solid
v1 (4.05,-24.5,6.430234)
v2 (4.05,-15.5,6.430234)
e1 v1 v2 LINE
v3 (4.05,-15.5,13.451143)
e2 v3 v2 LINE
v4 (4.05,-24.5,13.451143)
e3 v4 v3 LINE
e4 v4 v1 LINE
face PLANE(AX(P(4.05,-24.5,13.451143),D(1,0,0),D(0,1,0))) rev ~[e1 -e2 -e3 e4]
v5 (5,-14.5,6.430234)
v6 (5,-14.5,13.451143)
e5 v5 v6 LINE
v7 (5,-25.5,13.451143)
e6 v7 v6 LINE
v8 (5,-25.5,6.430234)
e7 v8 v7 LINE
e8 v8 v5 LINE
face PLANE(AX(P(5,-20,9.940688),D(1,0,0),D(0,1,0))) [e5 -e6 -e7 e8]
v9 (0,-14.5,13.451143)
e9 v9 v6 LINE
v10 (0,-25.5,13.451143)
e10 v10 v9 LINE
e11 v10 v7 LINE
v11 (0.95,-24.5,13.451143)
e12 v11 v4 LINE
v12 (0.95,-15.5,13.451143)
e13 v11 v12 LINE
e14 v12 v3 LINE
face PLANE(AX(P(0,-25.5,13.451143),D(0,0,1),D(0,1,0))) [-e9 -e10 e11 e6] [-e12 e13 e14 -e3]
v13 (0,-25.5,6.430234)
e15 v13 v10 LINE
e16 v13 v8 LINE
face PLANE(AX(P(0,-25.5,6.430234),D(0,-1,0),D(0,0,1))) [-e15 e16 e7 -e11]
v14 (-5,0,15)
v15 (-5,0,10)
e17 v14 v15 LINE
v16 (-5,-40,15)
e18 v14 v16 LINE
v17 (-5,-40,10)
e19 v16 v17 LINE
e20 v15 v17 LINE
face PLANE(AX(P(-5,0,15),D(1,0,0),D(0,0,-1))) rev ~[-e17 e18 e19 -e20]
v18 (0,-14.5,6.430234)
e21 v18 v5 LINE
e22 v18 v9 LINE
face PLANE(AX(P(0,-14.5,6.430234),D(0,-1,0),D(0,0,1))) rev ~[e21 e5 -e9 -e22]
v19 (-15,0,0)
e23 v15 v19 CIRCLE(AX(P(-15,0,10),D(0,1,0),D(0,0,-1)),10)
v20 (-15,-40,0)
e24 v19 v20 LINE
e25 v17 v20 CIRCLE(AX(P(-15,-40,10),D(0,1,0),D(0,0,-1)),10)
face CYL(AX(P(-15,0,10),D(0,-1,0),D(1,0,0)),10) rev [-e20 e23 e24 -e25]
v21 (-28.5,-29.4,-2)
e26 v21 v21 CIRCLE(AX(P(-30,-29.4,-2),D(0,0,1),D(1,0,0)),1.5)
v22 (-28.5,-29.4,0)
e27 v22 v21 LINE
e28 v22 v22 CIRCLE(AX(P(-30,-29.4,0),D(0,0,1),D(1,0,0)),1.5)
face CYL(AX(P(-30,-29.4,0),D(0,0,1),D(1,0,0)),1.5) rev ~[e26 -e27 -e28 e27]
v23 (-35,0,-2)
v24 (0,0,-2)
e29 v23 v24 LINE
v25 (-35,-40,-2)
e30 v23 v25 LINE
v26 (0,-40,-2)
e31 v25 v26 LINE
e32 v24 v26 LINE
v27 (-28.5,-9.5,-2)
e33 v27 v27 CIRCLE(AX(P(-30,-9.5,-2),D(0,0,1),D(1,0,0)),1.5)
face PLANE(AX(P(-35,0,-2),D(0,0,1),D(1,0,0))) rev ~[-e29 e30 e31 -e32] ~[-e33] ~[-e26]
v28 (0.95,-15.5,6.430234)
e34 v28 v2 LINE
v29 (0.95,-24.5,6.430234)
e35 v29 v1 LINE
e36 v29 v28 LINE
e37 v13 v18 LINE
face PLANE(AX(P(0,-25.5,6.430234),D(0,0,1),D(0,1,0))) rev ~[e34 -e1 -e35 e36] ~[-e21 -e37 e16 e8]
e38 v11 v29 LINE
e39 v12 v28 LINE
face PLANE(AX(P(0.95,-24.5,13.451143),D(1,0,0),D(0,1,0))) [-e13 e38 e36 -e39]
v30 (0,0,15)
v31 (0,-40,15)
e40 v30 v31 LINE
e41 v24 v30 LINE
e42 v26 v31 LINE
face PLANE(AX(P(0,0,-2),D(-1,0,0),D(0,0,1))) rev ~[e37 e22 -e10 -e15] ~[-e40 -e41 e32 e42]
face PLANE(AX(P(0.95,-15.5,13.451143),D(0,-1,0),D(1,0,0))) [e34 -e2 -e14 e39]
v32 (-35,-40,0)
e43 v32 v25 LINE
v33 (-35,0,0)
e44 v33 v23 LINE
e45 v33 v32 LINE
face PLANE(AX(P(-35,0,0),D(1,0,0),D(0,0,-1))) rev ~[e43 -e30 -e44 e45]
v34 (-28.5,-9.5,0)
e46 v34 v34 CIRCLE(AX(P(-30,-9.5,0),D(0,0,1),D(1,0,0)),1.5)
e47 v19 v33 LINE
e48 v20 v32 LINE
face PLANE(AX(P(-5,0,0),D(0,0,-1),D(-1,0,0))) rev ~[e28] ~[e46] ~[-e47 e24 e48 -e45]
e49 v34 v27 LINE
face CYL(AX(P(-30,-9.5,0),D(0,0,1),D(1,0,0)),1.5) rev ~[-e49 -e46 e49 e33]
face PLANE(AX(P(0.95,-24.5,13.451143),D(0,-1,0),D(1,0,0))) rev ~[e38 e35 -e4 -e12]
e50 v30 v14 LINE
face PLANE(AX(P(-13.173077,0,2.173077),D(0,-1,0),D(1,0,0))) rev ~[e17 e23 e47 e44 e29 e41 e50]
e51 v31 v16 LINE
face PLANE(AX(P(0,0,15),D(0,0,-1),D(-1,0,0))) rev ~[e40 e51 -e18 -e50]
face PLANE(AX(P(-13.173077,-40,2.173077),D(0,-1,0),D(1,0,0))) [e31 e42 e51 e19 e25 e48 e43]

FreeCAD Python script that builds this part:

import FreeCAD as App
import Part
import Sketcher

V = App.Vector


def edges_at(feature, points):
    """Names of the edges that pass closest to the given points."""
    edges = feature.Shape.Edges
    near = lambda p: min(range(len(edges)), key=lambda i: edges[i].distToShape(Part.Vertex(*p))[0])
    return sorted({f"Edge{near(p) + 1}" for p in points})

doc = App.newDocument("Part")
params = doc.addObject("Spreadsheet::Sheet", "Params")
for row, (alias, value) in enumerate([
    ("sketch1_width", "30 mm"),
    ("sketch1_width2", "35 mm"),
    ("sketch1_height", "15 mm"),
    ("sketch1_height2", "2 mm"),
    ("pad1_length", "40 mm"),
    ("fillet_radius", "10 mm"),
    ("sketch2_diameter", "3 mm"),
    ("pocket1_length", "6 mm"),
    ("sketch3_width", "11 mm"),
    ("pad2_length", "5 mm"),
    ("sketch4_height", "9 mm"),
    ("sketch4_width", "3.1 mm"),
    ("pocket2_length", "25 mm"),
], start=1):
    params.set(f"A{row}", alias)
    params.set(f"B{row}", "=" + value)
    params.setAlias(f"B{row}", alias)

body = doc.addObject("PartDesign::Body", "Body")

# Sketch on XZ plane
sketch1 = body.newObject("Sketcher::SketchObject", "Sketch")
sketch1.AttachmentSupport = (doc.getObject("XZ_Plane"), [""])
sketch1.MapMode = "FlatFace"
sketch1.addGeometry(Part.LineSegment(V(-5, 15, 0), V(-5, 0, 0)), False)
sketch1.addGeometry(Part.LineSegment(V(-5, 0, 0), V(-35, 0, 0)), False)
sketch1.addGeometry(Part.LineSegment(V(-35, 0, 0), V(-35, -2, 0)), False)
sketch1.addGeometry(Part.LineSegment(V(-35, -2, 0), V(0, -2, 0)), False)
sketch1.addGeometry(Part.LineSegment(V(0, -2, 0), V(0, 15, 0)), False)
sketch1.addGeometry(Part.LineSegment(V(0, 15, 0), V(-5, 15, 0)), False)
sketch1.addConstraint(Sketcher.Constraint("Coincident", 0, 2, 1, 1))
sketch1.addConstraint(Sketcher.Constraint("Coincident", 1, 2, 2, 1))
sketch1.addConstraint(Sketcher.Constraint("Coincident", 2, 2, 3, 1))
sketch1.addConstraint(Sketcher.Constraint("Coincident", 3, 2, 4, 1))
sketch1.addConstraint(Sketcher.Constraint("Coincident", 4, 2, 5, 1))
sketch1.addConstraint(Sketcher.Constraint("Coincident", 5, 2, 0, 1))
sketch1.addConstraint(Sketcher.Constraint("Vertical", 0))
sketch1.addConstraint(Sketcher.Constraint("Horizontal", 1))
sketch1.addConstraint(Sketcher.Constraint("Vertical", 2))
sketch1.addConstraint(Sketcher.Constraint("Horizontal", 3))
sketch1.addConstraint(Sketcher.Constraint("Vertical", 4))
sketch1.addConstraint(Sketcher.Constraint("Horizontal", 5))
sketch1.addConstraint(Sketcher.Constraint("PointOnObject", 0, 2, -1))
sketch1.addConstraint(Sketcher.Constraint("PointOnObject", 3, 2, -2))
sketch1.addConstraint(Sketcher.Constraint("DistanceX", 1, 2, 1, 1, 30.0))
sketch1.addConstraint(Sketcher.Constraint("DistanceX", 3, 1, 3, 2, 35.0))
sketch1.addConstraint(Sketcher.Constraint("DistanceY", 0, 2, 0, 1, 15.0))
sketch1.addConstraint(Sketcher.Constraint("DistanceY", 2, 2, 2, 1, 2.0))
sketch1.setExpression("Constraints[14]", "Params.sketch1_width")
sketch1.setExpression("Constraints[15]", "Params.sketch1_width2")
sketch1.setExpression("Constraints[16]", "Params.sketch1_height")
sketch1.setExpression("Constraints[17]", "Params.sketch1_height2")
pad1 = body.newObject("PartDesign::Pad", "Pad")
pad1.Profile = sketch1
pad1.setExpression("Length", "Params.pad1_length")
doc.recompute()

fillet = body.newObject("PartDesign::Fillet", "Fillet")
fillet.Base = (pad1, edges_at(pad1, [(-5, -20, 0)]))
fillet.setExpression("Radius", "Params.fillet_radius")

# Sketch on XY plane
sketch2 = body.newObject("Sketcher::SketchObject", "Sketch001")
sketch2.AttachmentSupport = (doc.getObject("XY_Plane"), [""])
sketch2.MapMode = "FlatFace"
sketch2.addGeometry(Part.Circle(V(-30, -9.5, 0), V(0, 0, 1), 1.5), False)
sketch2.addGeometry(Part.Circle(V(-30, -29.4, 0), V(0, 0, 1), 1.5), False)
sketch2.addConstraint(Sketcher.Constraint("Equal", 0, 1))
sketch2.addConstraint(Sketcher.Constraint("Vertical", 0, 3, 1, 3))
sketch2.addConstraint(Sketcher.Constraint("Diameter", 0, 3.0))
sketch2.addConstraint(Sketcher.Constraint("DistanceX", 0, 3, -1, 1, 30.0))
sketch2.addConstraint(Sketcher.Constraint("DistanceY", 0, 3, -1, 1, 9.5))
sketch2.addConstraint(Sketcher.Constraint("DistanceY", 1, 3, -1, 1, 29.4))
sketch2.setExpression("Constraints[2]", "Params.sketch2_diameter")
pocket1 = body.newObject("PartDesign::Pocket", "Pocket")
pocket1.Profile = sketch2
pocket1.setExpression("Length", "Params.pocket1_length")

# Sketch on YZ plane
sketch3 = body.newObject("Sketcher::SketchObject", "Sketch002")
sketch3.AttachmentSupport = (doc.getObject("YZ_Plane"), [""])
sketch3.MapMode = "FlatFace"
sketch3.addGeometry(Part.LineSegment(V(-25.5, 13.451143, 0), V(-25.5, 6.430234, 0)), False)
sketch3.addGeometry(Part.LineSegment(V(-25.5, 6.430234, 0), V(-14.5, 6.430234, 0)), False)
sketch3.addGeometry(Part.LineSegment(V(-14.5, 6.430234, 0), V(-14.5, 13.451143, 0)), False)
sketch3.addGeometry(Part.LineSegment(V(-14.5, 13.451143, 0), V(-25.5, 13.451143, 0)), False)
sketch3.addConstraint(Sketcher.Constraint("Coincident", 0, 2, 1, 1))
sketch3.addConstraint(Sketcher.Constraint("Coincident", 1, 2, 2, 1))
sketch3.addConstraint(Sketcher.Constraint("Coincident", 2, 2, 3, 1))
sketch3.addConstraint(Sketcher.Constraint("Coincident", 3, 2, 0, 1))
sketch3.addConstraint(Sketcher.Constraint("Vertical", 0))
sketch3.addConstraint(Sketcher.Constraint("Horizontal", 1))
sketch3.addConstraint(Sketcher.Constraint("Vertical", 2))
sketch3.addConstraint(Sketcher.Constraint("Horizontal", 3))
sketch3.addConstraint(Sketcher.Constraint("DistanceX", 1, 1, 1, 2, 11.0))
sketch3.addConstraint(Sketcher.Constraint("DistanceX", 0, 2, -1, 1, 25.5))
sketch3.addConstraint(Sketcher.Constraint("DistanceY", 0, 2, 0, 1, 7.020908))
sketch3.addConstraint(Sketcher.Constraint("DistanceY", -1, 1, 0, 2, 6.430234))
sketch3.setExpression("Constraints[8]", "Params.sketch3_width")
pad2 = body.newObject("PartDesign::Pad", "Pad001")
pad2.Profile = sketch3
pad2.setExpression("Length", "Params.pad2_length")

# Sketch on XY plane
sketch4 = body.newObject("Sketcher::SketchObject", "Sketch003")
sketch4.AttachmentSupport = (doc.getObject("XY_Plane"), [""])
sketch4.MapMode = "FlatFace"
sketch4.AttachmentOffset = App.Placement(V(0, 0, 13.451143), App.Rotation())
sketch4.addGeometry(Part.LineSegment(V(0.95, -15.5, 0), V(0.95, -24.5, 0)), False)
sketch4.addGeometry(Part.LineSegment(V(0.95, -24.5, 0), V(4.05, -24.5, 0)), False)
sketch4.addGeometry(Part.LineSegment(V(4.05, -24.5, 0), V(4.05, -15.5, 0)), False)
sketch4.addGeometry(Part.LineSegment(V(4.05, -15.5, 0), V(0.95, -15.5, 0)), False)
sketch4.addConstraint(Sketcher.Constraint("Coincident", 0, 2, 1, 1))
sketch4.addConstraint(Sketcher.Constraint("Coincident", 1, 2, 2, 1))
sketch4.addConstraint(Sketcher.Constraint("Coincident", 2, 2, 3, 1))
sketch4.addConstraint(Sketcher.Constraint("Coincident", 3, 2, 0, 1))
sketch4.addConstraint(Sketcher.Constraint("Vertical", 0))
sketch4.addConstraint(Sketcher.Constraint("Horizontal", 1))
sketch4.addConstraint(Sketcher.Constraint("Vertical", 2))
sketch4.addConstraint(Sketcher.Constraint("Horizontal", 3))
sketch4.addConstraint(Sketcher.Constraint("DistanceY", 0, 2, 0, 1, 9.0))
sketch4.addConstraint(Sketcher.Constraint("DistanceX", 1, 1, 1, 2, 3.1))
sketch4.addConstraint(Sketcher.Constraint("DistanceY", 0, 2, -1, 1, 24.5))
sketch4.addConstraint(Sketcher.Constraint("DistanceX", -1, 1, 0, 2, 0.95))
sketch4.setExpression("Constraints[8]", "Params.sketch4_height")
sketch4.setExpression("Constraints[9]", "Params.sketch4_width")
pocket2 = body.newObject("PartDesign::Pocket", "Pocket001")
pocket2.Profile = sketch4
pocket2.setExpression("Length", "Params.pocket2_length")

doc.recompute()
